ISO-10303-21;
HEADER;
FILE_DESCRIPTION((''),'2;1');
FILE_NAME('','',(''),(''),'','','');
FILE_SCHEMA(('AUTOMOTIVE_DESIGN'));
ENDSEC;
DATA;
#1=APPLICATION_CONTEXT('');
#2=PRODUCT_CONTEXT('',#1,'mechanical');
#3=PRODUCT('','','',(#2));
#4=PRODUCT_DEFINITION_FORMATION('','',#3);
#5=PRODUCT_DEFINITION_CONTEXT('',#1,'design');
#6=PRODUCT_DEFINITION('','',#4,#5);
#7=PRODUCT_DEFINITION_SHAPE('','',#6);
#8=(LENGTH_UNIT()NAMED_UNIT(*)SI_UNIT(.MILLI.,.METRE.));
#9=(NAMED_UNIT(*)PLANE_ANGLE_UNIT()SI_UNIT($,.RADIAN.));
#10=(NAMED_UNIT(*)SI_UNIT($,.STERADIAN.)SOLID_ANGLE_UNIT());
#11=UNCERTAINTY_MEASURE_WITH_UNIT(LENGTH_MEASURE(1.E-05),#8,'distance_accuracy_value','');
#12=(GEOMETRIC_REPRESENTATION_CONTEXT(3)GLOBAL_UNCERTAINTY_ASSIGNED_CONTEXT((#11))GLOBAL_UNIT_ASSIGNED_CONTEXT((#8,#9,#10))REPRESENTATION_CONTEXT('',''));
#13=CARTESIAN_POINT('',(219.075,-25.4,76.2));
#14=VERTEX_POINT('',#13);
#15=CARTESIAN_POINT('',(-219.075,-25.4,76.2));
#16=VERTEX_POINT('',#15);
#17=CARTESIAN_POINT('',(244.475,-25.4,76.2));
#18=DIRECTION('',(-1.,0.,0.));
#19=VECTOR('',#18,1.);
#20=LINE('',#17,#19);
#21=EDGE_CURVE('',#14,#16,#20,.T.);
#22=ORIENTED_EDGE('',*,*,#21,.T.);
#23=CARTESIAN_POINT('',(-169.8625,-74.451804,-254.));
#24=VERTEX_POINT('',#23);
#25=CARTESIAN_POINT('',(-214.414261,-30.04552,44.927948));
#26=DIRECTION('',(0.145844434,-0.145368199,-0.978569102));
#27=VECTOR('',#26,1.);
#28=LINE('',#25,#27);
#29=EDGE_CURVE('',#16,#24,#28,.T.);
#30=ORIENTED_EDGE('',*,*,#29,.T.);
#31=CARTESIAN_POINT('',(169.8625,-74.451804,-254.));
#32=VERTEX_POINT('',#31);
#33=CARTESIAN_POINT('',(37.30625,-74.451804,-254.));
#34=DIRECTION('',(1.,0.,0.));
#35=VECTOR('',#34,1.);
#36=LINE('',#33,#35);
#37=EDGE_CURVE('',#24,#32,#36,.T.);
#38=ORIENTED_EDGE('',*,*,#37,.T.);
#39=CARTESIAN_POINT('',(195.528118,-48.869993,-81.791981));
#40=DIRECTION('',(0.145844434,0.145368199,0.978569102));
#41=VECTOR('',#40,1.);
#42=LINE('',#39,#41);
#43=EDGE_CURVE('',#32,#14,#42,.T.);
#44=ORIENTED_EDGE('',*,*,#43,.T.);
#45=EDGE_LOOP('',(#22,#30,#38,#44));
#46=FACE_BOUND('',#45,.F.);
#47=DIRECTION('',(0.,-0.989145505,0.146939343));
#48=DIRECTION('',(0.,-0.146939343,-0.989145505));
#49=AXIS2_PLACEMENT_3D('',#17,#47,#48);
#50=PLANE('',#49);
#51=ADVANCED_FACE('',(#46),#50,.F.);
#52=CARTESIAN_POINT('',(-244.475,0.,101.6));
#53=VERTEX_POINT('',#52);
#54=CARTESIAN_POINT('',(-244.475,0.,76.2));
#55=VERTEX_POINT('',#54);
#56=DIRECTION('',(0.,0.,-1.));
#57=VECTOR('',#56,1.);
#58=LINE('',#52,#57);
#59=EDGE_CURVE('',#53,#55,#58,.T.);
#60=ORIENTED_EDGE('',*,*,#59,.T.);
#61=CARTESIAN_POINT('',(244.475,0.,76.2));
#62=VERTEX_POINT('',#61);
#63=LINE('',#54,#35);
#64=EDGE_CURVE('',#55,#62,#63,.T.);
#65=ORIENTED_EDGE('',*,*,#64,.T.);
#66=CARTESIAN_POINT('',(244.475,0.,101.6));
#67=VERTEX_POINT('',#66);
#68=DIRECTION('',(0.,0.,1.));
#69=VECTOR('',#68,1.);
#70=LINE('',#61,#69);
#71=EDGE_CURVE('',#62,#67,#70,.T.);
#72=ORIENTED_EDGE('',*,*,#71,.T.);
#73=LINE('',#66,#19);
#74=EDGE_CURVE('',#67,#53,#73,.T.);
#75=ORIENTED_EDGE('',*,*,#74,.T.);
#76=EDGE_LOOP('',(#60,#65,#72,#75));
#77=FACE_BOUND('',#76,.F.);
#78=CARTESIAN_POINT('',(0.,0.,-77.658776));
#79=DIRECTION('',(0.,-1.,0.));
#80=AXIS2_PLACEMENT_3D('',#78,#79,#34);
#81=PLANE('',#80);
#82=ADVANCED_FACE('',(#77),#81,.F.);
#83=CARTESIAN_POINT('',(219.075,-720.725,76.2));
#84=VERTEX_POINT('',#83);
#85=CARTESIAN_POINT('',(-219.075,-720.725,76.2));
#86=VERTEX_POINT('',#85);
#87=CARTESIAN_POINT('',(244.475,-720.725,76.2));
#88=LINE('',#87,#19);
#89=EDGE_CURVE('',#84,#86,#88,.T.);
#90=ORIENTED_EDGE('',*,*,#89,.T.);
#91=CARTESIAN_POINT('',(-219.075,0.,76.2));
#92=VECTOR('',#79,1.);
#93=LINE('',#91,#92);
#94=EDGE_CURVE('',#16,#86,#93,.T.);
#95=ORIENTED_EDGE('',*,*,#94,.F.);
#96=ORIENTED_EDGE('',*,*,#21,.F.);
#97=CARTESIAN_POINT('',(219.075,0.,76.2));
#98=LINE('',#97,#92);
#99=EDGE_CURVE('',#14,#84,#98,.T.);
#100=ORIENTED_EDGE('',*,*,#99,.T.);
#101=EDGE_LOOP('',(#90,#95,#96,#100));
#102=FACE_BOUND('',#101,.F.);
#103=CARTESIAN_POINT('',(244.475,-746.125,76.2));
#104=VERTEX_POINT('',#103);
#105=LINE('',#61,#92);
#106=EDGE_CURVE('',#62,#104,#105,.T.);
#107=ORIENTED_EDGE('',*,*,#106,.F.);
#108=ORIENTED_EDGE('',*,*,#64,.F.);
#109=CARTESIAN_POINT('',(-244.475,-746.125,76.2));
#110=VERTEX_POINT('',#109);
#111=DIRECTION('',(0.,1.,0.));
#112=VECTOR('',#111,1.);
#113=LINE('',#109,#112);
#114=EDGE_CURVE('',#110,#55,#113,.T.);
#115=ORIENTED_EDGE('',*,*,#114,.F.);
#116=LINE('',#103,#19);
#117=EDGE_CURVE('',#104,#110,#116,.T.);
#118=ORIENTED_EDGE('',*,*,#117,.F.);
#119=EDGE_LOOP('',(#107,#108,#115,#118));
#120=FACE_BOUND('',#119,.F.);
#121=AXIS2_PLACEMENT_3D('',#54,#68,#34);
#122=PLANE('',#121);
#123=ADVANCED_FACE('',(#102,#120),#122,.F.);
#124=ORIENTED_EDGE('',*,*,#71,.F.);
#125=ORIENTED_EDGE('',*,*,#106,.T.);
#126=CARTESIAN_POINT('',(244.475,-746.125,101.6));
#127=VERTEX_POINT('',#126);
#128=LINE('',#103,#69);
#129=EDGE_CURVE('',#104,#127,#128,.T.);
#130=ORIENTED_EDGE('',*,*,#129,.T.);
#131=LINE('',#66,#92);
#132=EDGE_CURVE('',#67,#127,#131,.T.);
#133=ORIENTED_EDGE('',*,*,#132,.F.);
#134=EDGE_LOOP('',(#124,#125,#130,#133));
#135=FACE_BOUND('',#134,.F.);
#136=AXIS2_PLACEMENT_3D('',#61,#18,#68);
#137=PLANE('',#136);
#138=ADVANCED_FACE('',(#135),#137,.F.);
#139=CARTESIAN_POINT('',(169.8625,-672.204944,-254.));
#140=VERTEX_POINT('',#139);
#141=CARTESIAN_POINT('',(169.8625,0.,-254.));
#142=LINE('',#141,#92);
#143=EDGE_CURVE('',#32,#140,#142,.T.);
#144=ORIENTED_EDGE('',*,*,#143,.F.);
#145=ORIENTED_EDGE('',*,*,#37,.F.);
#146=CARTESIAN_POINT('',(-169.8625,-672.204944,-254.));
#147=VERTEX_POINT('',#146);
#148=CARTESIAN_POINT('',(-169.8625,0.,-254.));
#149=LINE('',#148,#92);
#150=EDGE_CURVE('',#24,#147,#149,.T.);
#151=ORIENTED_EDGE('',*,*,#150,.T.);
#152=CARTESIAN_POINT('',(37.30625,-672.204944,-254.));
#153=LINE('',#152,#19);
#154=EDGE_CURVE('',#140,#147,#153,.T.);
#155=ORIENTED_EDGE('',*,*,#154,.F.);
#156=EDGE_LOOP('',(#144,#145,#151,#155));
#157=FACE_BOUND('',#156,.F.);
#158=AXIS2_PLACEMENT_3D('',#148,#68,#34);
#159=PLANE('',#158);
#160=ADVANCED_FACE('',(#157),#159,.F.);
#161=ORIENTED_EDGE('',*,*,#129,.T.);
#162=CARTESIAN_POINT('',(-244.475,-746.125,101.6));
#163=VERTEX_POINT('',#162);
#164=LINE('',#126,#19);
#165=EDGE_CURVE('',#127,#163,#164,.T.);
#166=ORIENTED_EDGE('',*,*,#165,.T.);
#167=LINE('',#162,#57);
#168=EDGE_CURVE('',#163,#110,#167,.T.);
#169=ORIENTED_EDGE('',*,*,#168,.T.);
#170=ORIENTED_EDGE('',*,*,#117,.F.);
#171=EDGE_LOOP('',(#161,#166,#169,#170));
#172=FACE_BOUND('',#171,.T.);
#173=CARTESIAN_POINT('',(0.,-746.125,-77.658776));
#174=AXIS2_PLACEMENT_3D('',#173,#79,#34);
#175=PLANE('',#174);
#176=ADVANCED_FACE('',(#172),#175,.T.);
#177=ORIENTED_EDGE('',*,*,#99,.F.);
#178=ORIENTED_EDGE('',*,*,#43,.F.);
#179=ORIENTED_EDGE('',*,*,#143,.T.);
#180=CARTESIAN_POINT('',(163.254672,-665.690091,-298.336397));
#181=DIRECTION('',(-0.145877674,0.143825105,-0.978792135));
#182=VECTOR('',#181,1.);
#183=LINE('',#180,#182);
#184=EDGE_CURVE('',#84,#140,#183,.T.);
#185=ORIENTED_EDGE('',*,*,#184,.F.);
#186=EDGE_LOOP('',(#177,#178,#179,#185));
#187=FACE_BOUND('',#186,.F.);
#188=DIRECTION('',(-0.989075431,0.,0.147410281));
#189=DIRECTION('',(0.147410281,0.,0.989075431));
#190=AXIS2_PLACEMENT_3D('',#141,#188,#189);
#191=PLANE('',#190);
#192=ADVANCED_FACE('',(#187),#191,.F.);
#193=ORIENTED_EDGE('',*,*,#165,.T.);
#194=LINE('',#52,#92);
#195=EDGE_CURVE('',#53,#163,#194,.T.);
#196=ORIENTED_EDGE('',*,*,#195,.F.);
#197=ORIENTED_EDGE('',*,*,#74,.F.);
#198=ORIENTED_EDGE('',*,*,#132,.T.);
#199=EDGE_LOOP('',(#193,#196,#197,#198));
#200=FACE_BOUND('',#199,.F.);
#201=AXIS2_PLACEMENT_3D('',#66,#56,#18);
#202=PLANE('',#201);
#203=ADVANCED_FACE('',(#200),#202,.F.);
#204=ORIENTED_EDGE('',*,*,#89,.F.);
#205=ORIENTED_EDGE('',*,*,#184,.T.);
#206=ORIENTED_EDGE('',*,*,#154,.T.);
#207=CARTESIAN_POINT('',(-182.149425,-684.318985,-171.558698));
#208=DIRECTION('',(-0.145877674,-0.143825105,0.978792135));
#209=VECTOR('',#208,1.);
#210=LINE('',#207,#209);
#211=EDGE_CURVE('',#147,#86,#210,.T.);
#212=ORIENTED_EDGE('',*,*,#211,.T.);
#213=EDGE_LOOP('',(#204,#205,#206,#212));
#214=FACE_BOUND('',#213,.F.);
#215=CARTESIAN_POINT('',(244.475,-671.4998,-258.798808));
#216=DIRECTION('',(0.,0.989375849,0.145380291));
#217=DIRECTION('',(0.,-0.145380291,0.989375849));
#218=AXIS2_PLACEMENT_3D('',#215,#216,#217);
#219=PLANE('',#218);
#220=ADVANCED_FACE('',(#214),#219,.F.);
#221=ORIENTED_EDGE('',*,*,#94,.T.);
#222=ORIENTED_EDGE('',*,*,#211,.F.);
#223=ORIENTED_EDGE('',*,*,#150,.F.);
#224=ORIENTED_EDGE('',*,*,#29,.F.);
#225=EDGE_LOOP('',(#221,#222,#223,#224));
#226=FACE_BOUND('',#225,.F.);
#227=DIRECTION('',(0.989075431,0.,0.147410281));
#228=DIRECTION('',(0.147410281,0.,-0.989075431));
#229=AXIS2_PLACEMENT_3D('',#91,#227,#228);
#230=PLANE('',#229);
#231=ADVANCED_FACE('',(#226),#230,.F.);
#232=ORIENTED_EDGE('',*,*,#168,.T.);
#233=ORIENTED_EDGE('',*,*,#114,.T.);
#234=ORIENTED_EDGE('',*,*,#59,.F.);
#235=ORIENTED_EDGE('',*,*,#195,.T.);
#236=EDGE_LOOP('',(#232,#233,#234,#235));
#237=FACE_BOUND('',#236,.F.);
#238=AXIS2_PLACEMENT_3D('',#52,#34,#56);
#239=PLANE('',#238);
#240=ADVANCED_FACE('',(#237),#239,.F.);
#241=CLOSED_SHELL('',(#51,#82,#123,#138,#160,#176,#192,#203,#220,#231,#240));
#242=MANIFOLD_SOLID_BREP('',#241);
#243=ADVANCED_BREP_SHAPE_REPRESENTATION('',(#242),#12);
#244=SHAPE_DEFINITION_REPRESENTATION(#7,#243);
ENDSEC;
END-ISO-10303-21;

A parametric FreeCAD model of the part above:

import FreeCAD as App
import Part
import Sketcher
from FreeCAD import Vector
Q = App.Units.Quantity


def add_polygon(sketch, points):
    """Adds a closed chain of lines whose ends are joined by coincident constraints."""
    first, n = sketch.GeometryCount, len(points)
    for a, b in zip(points, points[1:] + points[:1]):
        sketch.addGeometry(Part.LineSegment(App.Vector(*a, 0), App.Vector(*b, 0)), False)
    for i in range(n):
        sketch.addConstraint(Sketcher.Constraint("Coincident", first + i, 2, first + (i + 1) % n, 1))

doc = App.newDocument("Part")
body = doc.addObject("PartDesign::Body", "Body")

sketch1 = body.newObject("Sketcher::SketchObject", "Sketch")
sketch1.AttachmentSupport = (doc.getObject("XZ_Plane"), [""])
sketch1.MapMode = "FlatFace"
add_polygon(sketch1, [(-219.075, 76.2), (-169.8625, -254), (169.8625, -254), (219.075, 76.2), (244.475, 76.2), (244.475, 101.6), (-244.475, 101.6), (-244.475, 76.2)])
sketch1.addConstraint(Sketcher.Constraint("Horizontal", 1))
sketch1.addConstraint(Sketcher.Constraint("Horizontal", 3))
sketch1.addConstraint(Sketcher.Constraint("Vertical", 4))
sketch1.addConstraint(Sketcher.Constraint("Horizontal", 5))
sketch1.addConstraint(Sketcher.Constraint("Vertical", 6))
sketch1.addConstraint(Sketcher.Constraint("Horizontal", 7))
sketch1.addConstraint(Sketcher.Constraint("Symmetric", 3, 2, 6, 2, -2))
sketch1.addConstraint(Sketcher.Constraint("Equal", 3, 7))
sketch1.addConstraint(Sketcher.Constraint("Equal", 7, 4))
sketch1.addConstraint(Sketcher.Constraint("Equal", 0, 2))
sketch1.addConstraint(Sketcher.Constraint("DistanceX", 3, 1, 3, 2, Q("1 in")))
sketch1.addConstraint(Sketcher.Constraint("DistanceY", 0, 2, -1, 1, Q("10 in")))
sketch1.addConstraint(Sketcher.Constraint("DistanceY", -1, 1, 2, 2, Q("3 in")))
sketch1.addConstraint(Sketcher.Constraint("DistanceX", 5, 2, 5, 1, Q("19.25 in")))
sketch1.addConstraint(Sketcher.Constraint("DistanceX", 1, 1, 1, 2, Q("13.375 in")))
pad1 = body.newObject("PartDesign::Pad", "Pad")
pad1.Profile = sketch1
pad1.Length = Q("29.375 in")

sketch2 = body.newObject("Sketcher::SketchObject", "Sketch001")
sketch2.AttachmentSupport = (doc.getObject("YZ_Plane"), [""])
sketch2.MapMode = "FlatFace"
sketch2.AttachmentOffset = App.Placement(Vector(0, 0, 9.625 * 25.4), App.Rotation())
add_polygon(sketch2, [(-720.725, 76.2), (-746.125, 76.2), (-746.125, -258.798808), (-671.4998, -258.798808)])
add_polygon(sketch2, [(0, -255.167246), (0, 76.2), (-25.4, 76.2), (-74.6252, -255.167246)])
sketch2.addConstraint(Sketcher.Constraint("Horizontal", 0))
sketch2.addConstraint(Sketcher.Constraint("Vertical", 1))
sketch2.addConstraint(Sketcher.Constraint("Horizontal", 2))
sketch2.addConstraint(Sketcher.Constraint("Vertical", 4))
sketch2.addConstraint(Sketcher.Constraint("Horizontal", 5))
sketch2.addConstraint(Sketcher.Constraint("Horizontal", 7))
sketch2.addConstraint(Sketcher.Constraint("PointOnObject", 4, 2, -2))
sketch2.addConstraint(Sketcher.Constraint("Horizontal", 3, 2, 4, 2))
sketch2.addConstraint(Sketcher.Constraint("Equal", 0, 5))
sketch2.addConstraint(Sketcher.Constraint("Equal", 2, 7))
sketch2.addConstraint(Sketcher.Constraint("DistanceX", 0, 2, 0, 1, Q("1 in")))
sketch2.addConstraint(Sketcher.Constraint("DistanceY", -1, 1, 0, 2, Q("3 in")))
sketch2.addConstraint(Sketcher.Constraint("DistanceX", 2, 1, 2, 2, Q("2.938 in")))
sketch2.addConstraint(Sketcher.Constraint("DistanceX", 0, 2, -1, 1, Q("29.375 in")))
sketch2.addConstraint(Sketcher.Constraint("DistanceY", 1, 2, 1, 1, Q("334.998808 mm")))
sketch2.addConstraint(Sketcher.Constraint("Distance", 6, Q("335.00354 mm")))
pocket1 = body.newObject("PartDesign::Pocket", "Pocket")
pocket1.Profile = sketch2
pocket1.Length = Q("50 in")

doc.recompute()
